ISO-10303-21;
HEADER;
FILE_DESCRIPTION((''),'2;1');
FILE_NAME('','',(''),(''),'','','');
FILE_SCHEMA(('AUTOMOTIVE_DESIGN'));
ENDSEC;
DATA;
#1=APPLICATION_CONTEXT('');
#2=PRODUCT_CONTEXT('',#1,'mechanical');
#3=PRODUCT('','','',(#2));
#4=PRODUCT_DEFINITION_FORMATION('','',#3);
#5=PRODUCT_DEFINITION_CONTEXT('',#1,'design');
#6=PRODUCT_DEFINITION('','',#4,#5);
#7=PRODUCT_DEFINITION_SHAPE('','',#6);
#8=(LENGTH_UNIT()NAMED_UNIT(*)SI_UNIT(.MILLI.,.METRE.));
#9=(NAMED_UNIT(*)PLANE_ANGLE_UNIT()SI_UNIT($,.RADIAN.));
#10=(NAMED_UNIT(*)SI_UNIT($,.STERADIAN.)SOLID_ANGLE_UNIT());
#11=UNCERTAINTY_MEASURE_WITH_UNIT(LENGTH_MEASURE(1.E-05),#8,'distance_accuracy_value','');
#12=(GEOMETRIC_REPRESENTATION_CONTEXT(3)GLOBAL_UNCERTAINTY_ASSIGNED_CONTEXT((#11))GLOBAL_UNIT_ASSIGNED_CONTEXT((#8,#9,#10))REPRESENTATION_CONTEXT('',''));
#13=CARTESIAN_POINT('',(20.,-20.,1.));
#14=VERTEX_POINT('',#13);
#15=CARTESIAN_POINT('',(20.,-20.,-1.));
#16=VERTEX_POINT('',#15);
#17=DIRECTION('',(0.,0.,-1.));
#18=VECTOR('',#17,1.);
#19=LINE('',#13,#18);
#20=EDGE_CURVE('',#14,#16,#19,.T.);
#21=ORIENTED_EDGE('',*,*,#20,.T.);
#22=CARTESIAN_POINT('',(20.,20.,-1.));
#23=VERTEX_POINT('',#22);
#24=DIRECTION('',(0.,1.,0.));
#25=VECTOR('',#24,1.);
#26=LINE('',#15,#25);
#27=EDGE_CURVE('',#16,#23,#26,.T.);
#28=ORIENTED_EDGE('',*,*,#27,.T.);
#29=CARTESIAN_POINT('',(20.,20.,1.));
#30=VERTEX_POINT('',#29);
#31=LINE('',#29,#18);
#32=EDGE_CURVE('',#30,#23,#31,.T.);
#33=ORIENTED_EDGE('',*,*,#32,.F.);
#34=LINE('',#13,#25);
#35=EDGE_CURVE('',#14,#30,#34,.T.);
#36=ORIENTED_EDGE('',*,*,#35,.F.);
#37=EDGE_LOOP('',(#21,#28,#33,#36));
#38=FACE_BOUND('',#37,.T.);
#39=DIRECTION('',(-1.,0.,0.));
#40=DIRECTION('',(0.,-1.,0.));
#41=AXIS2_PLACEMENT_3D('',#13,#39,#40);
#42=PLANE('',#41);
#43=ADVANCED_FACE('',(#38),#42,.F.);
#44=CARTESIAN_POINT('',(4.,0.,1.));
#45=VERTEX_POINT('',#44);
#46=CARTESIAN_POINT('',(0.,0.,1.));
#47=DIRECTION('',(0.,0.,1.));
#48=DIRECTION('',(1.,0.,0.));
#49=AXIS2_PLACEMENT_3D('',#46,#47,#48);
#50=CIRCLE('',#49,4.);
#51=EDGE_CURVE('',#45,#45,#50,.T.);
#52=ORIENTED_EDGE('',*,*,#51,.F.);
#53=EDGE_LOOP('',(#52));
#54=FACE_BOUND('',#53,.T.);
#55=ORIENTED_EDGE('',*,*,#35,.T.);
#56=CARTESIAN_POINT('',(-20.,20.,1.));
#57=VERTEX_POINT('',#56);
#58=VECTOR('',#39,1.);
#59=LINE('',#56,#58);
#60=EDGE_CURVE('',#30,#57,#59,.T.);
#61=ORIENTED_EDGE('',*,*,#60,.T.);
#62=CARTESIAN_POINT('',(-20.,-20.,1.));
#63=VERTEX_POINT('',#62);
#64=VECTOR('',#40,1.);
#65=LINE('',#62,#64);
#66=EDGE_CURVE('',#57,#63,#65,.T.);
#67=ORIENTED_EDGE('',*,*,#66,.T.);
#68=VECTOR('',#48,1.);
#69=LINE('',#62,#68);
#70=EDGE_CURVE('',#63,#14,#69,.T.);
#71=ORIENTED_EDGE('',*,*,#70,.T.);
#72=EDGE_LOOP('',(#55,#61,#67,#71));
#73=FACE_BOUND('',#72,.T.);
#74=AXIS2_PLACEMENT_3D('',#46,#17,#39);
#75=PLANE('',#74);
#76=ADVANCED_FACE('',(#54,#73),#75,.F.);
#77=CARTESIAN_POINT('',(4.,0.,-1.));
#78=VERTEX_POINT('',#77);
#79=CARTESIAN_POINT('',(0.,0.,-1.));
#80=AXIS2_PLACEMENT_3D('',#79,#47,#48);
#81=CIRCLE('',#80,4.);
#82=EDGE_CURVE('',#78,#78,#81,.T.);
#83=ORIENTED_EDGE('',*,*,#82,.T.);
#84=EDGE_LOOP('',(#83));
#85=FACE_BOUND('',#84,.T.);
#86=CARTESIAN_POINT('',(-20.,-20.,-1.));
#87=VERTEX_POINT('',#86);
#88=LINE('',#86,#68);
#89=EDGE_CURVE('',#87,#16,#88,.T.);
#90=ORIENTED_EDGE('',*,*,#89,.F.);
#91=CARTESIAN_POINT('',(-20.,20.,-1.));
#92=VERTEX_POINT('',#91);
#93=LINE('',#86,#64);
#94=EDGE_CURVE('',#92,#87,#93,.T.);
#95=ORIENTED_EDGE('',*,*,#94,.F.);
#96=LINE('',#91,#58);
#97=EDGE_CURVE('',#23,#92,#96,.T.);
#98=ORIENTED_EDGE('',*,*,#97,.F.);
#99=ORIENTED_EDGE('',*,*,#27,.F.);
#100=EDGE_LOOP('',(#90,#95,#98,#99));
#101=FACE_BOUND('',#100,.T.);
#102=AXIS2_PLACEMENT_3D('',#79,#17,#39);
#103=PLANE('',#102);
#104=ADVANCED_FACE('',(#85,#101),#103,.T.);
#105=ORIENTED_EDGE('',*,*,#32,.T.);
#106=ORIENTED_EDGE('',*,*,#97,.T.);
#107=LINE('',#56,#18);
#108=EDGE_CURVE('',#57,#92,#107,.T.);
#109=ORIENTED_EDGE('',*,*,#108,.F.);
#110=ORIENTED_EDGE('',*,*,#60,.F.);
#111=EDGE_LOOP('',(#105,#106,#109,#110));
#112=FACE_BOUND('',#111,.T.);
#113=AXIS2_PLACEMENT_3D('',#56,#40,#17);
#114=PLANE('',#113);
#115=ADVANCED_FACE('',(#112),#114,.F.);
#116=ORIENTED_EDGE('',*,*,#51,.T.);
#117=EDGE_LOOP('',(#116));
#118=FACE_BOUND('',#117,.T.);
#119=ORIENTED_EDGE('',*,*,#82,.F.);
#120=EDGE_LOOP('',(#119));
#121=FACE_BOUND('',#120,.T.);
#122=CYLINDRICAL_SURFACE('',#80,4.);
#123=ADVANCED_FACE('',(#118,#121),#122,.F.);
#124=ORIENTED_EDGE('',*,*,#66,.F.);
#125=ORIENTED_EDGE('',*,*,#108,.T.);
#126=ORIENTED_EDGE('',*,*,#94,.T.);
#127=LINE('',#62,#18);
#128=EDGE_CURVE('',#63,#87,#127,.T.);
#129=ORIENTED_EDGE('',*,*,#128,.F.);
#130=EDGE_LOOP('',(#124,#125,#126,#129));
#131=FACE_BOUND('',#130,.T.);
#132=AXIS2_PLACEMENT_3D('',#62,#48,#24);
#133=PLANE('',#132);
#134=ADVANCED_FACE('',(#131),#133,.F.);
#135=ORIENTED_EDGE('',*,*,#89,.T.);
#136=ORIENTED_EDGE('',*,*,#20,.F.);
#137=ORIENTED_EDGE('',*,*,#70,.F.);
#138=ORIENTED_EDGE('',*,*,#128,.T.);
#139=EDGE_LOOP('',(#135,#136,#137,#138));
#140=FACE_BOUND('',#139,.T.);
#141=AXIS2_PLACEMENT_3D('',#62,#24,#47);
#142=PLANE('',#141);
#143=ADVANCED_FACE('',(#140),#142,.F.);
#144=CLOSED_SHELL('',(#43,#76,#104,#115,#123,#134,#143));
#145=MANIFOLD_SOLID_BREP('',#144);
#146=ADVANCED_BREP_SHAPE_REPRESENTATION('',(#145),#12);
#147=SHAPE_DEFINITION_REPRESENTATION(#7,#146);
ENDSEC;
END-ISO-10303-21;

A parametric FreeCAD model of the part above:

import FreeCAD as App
import Part
import Sketcher

V = App.Vector
Q = App.Units.Quantity

doc = App.newDocument("Part")
body = doc.addObject("PartDesign::Body", "Body")

sketch1 = body.newObject("Sketcher::SketchObject", "Sketch")
sketch1.AttachmentSupport = (doc.getObject("XY_Plane"), [""])
sketch1.MapMode = "FlatFace"
sketch1.addGeometry([
    Part.LineSegment(V(-20, 20, 0), V(-20, -20, 0)),
    Part.LineSegment(V(-20, -20, 0), V(20, -20, 0)),
    Part.LineSegment(V(20, -20, 0), V(20, 20, 0)),
    Part.LineSegment(V(20, 20, 0), V(-20, 20, 0)),
], False)
sketch1.addConstraint([
    Sketcher.Constraint("Coincident", 0, 2, 1, 1),
    Sketcher.Constraint("Coincident", 1, 2, 2, 1),
    Sketcher.Constraint("Coincident", 2, 2, 3, 1),
    Sketcher.Constraint("Coincident", 3, 2, 0, 1),
    Sketcher.Constraint("Vertical", 0),
    Sketcher.Constraint("Horizontal", 1),
    Sketcher.Constraint("Vertical", 2),
    Sketcher.Constraint("Horizontal", 3),
    Sketcher.Constraint("Symmetric", 0, 2, 2, 2, -1, 1),
    Sketcher.Constraint("Equal", 3, 0),
    Sketcher.Constraint("DistanceX", 1, 1, 1, 2, Q("40 mm")),
])
pad1 = body.newObject("PartDesign::Pad", "Pad")
pad1.Profile = sketch1
pad1.Length = 2
pad1.Midplane = True

sketch2 = body.newObject("Sketcher::SketchObject", "Sketch001")
sketch2.AttachmentSupport = (doc.getObject("XY_Plane"), [""])
sketch2.MapMode = "FlatFace"
sketch2.AttachmentOffset = App.Placement(V(0, 0, 1), App.Rotation())
sketch2.addGeometry(Part.Circle(V(0, 0, 0), V(0, 0, 1), 4), False)
sketch2.addConstraint([
    Sketcher.Constraint("Coincident", 0, 3, -1, 1),
    Sketcher.Constraint("Diameter", 0, Q("8 mm")),
])
pocket1 = body.newObject("PartDesign::Pocket", "Pocket")
pocket1.Profile = sketch2
pocket1.Type = "ThroughAll"

doc.recompute()
